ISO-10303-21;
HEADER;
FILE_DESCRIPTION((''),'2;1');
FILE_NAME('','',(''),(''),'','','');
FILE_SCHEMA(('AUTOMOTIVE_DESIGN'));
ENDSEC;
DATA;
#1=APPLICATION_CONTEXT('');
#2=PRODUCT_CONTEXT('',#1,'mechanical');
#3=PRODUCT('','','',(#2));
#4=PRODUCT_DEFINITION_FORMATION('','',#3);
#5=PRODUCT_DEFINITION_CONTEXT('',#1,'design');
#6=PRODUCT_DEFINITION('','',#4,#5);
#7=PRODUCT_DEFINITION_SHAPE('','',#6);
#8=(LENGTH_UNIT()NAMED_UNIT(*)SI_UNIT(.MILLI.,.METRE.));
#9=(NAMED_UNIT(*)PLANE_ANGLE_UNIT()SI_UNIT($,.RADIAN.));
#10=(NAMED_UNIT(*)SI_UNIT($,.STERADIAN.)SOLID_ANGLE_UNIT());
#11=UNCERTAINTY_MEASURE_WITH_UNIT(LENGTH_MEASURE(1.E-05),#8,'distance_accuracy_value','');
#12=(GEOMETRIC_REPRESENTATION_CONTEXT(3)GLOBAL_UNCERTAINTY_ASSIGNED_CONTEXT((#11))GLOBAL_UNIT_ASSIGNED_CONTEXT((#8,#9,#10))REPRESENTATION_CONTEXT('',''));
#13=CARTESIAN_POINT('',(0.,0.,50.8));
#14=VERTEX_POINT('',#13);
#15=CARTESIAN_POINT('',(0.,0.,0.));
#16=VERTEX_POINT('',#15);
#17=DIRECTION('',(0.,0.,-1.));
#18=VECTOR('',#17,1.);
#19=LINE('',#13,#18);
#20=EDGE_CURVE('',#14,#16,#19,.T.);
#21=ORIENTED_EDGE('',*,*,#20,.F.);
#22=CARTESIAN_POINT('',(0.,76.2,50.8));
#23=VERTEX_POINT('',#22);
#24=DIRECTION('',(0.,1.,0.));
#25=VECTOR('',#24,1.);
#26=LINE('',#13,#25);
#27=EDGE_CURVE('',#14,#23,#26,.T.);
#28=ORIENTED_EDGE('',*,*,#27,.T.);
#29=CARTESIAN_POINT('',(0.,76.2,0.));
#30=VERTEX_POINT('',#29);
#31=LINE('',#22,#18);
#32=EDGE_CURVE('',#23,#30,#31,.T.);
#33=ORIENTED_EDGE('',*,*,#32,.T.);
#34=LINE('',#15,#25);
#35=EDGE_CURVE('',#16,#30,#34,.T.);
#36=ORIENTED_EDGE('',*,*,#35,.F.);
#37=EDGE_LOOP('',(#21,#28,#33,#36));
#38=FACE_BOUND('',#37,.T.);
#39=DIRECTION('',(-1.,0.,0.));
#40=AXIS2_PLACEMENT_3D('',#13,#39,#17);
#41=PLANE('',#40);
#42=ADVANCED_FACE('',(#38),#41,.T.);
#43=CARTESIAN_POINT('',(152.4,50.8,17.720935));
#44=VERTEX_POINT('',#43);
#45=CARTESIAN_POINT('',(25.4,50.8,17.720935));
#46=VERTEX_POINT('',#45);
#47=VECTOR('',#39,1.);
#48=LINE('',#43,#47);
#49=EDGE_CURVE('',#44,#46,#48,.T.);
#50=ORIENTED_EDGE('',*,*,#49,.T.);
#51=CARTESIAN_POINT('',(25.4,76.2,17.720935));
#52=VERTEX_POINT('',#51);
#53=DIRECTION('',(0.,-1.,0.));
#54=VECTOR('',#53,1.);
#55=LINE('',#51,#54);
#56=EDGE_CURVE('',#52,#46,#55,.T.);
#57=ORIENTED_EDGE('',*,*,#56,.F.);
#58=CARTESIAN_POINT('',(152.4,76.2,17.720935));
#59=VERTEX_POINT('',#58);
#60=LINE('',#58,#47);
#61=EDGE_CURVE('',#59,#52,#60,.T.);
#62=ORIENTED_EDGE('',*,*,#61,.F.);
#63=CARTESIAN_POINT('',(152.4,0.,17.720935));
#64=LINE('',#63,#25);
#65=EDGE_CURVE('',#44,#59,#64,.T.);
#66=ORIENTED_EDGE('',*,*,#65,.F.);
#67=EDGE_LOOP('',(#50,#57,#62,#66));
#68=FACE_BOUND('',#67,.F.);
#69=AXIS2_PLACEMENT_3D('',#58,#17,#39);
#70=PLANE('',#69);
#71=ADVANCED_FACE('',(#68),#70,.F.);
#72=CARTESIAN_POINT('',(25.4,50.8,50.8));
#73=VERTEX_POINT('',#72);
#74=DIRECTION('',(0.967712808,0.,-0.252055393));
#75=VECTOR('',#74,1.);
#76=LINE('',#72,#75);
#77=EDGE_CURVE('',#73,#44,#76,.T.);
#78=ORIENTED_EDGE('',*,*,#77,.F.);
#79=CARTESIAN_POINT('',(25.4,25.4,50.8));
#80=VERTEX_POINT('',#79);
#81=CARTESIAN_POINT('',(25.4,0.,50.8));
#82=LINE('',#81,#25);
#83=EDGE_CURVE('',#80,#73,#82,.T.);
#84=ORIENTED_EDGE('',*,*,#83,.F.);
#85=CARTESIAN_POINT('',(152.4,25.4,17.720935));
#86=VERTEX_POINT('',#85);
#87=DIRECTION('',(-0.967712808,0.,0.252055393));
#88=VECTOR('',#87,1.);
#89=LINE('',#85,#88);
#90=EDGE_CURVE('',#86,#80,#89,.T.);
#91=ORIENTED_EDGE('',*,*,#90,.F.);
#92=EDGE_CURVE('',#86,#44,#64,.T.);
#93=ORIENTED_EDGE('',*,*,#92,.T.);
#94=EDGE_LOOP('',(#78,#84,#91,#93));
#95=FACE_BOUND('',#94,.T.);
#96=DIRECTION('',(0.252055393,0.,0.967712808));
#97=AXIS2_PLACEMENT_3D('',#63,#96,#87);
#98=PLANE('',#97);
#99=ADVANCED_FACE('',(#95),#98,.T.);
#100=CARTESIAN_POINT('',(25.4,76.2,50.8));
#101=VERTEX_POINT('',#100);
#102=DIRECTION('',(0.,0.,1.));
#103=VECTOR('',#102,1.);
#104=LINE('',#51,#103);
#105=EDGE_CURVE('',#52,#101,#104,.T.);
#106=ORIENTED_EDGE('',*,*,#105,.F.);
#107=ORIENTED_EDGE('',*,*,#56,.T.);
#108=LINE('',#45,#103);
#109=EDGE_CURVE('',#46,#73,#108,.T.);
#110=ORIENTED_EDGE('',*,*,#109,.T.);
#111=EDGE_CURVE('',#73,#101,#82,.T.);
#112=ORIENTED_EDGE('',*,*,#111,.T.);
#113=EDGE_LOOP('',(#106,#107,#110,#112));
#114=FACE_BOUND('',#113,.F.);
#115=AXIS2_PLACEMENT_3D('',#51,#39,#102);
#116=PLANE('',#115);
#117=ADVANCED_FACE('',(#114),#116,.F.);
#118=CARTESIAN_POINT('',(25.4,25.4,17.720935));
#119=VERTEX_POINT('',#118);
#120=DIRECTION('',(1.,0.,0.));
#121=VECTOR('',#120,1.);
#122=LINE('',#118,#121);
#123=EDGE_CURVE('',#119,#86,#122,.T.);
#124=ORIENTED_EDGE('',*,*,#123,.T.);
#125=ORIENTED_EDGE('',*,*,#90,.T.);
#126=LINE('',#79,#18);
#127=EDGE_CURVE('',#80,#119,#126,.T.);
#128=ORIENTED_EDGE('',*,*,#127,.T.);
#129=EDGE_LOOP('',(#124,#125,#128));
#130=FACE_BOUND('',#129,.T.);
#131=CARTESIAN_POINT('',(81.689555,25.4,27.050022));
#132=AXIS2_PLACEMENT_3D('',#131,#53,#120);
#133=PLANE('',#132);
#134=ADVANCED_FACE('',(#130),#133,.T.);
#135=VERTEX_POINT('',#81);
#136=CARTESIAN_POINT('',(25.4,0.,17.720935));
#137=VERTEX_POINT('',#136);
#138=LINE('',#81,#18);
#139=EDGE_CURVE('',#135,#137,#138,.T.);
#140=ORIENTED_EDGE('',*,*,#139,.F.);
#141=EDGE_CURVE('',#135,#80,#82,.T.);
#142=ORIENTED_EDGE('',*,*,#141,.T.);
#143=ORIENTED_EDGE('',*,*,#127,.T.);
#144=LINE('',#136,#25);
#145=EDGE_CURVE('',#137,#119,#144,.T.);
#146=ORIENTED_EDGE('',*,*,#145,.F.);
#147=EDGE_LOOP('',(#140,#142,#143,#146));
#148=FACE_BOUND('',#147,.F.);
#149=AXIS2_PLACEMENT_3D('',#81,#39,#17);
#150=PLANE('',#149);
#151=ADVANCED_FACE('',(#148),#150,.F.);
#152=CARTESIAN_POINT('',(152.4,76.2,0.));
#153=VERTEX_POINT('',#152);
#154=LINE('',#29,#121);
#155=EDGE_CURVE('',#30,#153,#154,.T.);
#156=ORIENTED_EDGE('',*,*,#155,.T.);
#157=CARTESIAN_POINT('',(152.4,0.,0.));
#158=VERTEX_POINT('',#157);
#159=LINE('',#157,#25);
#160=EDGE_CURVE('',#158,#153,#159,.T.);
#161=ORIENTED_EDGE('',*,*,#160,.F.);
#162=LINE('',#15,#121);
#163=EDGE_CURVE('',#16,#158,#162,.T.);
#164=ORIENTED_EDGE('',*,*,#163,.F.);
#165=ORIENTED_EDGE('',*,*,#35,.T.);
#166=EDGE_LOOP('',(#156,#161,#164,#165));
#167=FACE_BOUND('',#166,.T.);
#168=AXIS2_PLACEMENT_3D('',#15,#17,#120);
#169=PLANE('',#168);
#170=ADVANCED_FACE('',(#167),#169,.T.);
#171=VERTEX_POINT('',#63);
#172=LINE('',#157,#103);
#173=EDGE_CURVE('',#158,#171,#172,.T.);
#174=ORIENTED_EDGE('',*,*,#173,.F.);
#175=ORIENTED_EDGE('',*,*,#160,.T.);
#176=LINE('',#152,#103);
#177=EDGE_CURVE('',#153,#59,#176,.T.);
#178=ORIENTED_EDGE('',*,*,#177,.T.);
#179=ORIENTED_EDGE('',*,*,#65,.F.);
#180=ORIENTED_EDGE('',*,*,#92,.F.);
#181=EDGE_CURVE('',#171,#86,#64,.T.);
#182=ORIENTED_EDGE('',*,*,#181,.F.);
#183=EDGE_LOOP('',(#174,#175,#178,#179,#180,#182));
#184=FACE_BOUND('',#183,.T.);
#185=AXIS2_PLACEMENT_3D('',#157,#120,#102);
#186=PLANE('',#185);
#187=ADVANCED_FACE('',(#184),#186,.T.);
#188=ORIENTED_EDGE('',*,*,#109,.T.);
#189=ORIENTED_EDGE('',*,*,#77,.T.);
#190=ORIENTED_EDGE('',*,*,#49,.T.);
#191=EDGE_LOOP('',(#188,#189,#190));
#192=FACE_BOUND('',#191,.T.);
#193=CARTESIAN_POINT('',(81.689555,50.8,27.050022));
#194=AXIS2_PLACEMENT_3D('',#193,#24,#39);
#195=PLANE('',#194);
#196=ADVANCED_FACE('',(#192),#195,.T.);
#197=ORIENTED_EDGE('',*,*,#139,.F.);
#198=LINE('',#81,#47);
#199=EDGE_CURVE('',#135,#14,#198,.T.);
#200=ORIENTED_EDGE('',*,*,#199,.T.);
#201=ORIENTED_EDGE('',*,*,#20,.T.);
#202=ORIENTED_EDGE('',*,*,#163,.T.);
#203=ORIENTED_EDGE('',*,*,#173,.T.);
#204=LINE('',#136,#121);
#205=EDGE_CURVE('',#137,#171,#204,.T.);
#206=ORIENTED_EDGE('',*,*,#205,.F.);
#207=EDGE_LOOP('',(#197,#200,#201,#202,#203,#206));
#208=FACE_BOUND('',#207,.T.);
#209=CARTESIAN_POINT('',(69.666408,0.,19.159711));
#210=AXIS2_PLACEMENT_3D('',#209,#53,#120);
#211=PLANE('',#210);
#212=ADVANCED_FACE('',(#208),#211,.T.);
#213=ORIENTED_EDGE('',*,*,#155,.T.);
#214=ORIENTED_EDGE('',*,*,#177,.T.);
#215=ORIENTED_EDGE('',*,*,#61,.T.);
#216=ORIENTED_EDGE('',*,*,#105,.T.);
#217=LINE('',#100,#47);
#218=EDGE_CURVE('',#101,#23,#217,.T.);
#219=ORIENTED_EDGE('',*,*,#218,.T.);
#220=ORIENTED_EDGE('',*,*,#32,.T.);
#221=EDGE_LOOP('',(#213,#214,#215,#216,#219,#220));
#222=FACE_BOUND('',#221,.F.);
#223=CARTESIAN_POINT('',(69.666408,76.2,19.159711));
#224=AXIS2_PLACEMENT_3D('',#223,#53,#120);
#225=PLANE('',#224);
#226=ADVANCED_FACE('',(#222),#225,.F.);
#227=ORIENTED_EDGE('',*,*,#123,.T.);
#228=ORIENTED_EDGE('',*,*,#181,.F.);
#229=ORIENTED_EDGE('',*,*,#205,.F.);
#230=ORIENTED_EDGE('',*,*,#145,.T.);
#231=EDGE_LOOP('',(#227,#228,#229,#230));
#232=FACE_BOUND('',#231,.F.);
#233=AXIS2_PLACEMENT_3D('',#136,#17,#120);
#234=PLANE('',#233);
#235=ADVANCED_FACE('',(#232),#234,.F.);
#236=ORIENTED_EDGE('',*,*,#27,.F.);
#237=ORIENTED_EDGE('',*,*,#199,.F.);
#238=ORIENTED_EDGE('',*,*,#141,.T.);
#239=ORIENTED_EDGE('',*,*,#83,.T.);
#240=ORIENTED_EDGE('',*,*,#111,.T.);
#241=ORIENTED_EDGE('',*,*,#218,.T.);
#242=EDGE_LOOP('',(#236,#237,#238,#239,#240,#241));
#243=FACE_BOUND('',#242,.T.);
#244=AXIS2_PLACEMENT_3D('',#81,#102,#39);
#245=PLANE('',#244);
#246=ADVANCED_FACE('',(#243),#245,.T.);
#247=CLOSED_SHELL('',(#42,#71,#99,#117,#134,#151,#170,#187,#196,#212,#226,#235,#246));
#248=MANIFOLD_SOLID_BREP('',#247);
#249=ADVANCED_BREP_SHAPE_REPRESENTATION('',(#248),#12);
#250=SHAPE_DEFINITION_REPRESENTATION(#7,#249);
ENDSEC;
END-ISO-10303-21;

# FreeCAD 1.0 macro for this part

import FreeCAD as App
import Part
import Sketcher

V = App.Vector
Q = App.Units.Quantity

doc = App.newDocument("Part")
body = doc.addObject("PartDesign::Body", "Body")

# Sketch on XZ plane
sketch1 = doc.addObject("Sketcher::SketchObject", "Sketch")
body.addObject(sketch1)
sketch1.AttachmentSupport = (doc.XZ_Plane, [""])
sketch1.MapMode = "FlatFace"
sketch1.addGeometry(Part.LineSegment(V(0, 51, 0), V(0, 0, 0)), False)
sketch1.addGeometry(Part.LineSegment(V(0, 0, 0), V(152, 0, 0)), False)
sketch1.addGeometry(Part.LineSegment(V(152, 0, 0), V(152, 18, 0)), False)
sketch1.addGeometry(Part.LineSegment(V(152, 18, 0), V(25, 51, 0)), False)
sketch1.addGeometry(Part.LineSegment(V(25, 51, 0), V(0, 51, 0)), False)
sketch1.addConstraint(Sketcher.Constraint("Coincident", 0, 2, 1, 1))
sketch1.addConstraint(Sketcher.Constraint("Coincident", 1, 2, 2, 1))
sketch1.addConstraint(Sketcher.Constraint("Coincident", 2, 2, 3, 1))
sketch1.addConstraint(Sketcher.Constraint("Coincident", 3, 2, 4, 1))
sketch1.addConstraint(Sketcher.Constraint("Coincident", 4, 2, 0, 1))
sketch1.addConstraint(Sketcher.Constraint("Vertical", 0))
sketch1.addConstraint(Sketcher.Constraint("Horizontal", 1))
sketch1.addConstraint(Sketcher.Constraint("Vertical", 2))
sketch1.addConstraint(Sketcher.Constraint("Horizontal", 4))
sketch1.addConstraint(Sketcher.Constraint("Coincident", 0, 2, -1, 1))
sketch1.addConstraint(Sketcher.Constraint("DistanceX", 1, 1, 1, 2, Q("6 in")))
sketch1.addConstraint(Sketcher.Constraint("DistanceX", 4, 2, 4, 1, Q("1 in")))
sketch1.addConstraint(Sketcher.Constraint("DistanceY", 0, 2, 0, 1, Q("2 in")))
sketch1.addConstraint(Sketcher.Constraint("DistanceY", 2, 1, 2, 2, Q("17.720935 mm")))
pad1 = doc.addObject("PartDesign::Pad", "Pad")
body.addObject(pad1)
pad1.Profile = sketch1
pad1.Length = Q("3 in")
pad1.Reversed = True

# Sketch on XZ plane
sketch2 = doc.addObject("Sketcher::SketchObject", "Sketch001")
body.addObject(sketch2)
sketch2.AttachmentSupport = (doc.XZ_Plane, [""])
sketch2.MapMode = "FlatFace"
sketch2.addGeometry(Part.LineSegment(V(25, 18, 0), V(152, 18, 0)), False)
sketch2.addGeometry(Part.LineSegment(V(152, 18, 0), V(25, 51, 0)), False)
sketch2.addGeometry(Part.LineSegment(V(25, 51, 0), V(25, 18, 0)), False)
sketch2.addConstraint(Sketcher.Constraint("Coincident", 0, 2, 1, 1))
sketch2.addConstraint(Sketcher.Constraint("Coincident", 1, 2, 2, 1))
sketch2.addConstraint(Sketcher.Constraint("Coincident", 2, 2, 0, 1))
sketch2.addConstraint(Sketcher.Constraint("Horizontal", 0))
sketch2.addConstraint(Sketcher.Constraint("Vertical", 2))
sketch2.addConstraint(Sketcher.Constraint("DistanceX", 0, 1, 0, 2, Q("5 in")))
sketch2.addConstraint(Sketcher.Constraint("DistanceX", -1, 1, 0, 2, Q("6 in")))
sketch2.addConstraint(Sketcher.Constraint("DistanceY", -1, 1, 1, 2, Q("2 in")))
sketch2.addConstraint(Sketcher.Constraint("DistanceY", 2, 2, 2, 1, Q("33.079065 mm")))
pocket1 = doc.addObject("PartDesign::Pocket", "Pocket")
body.addObject(pocket1)
pocket1.Profile = sketch2
pocket1.Length = Q("1 in")

# Sketch on XZ plane
sketch3 = doc.addObject("Sketcher::SketchObject", "Sketch002")
body.addObject(sketch3)
sketch3.AttachmentSupport = (doc.XZ_Plane, [""])
sketch3.MapMode = "FlatFace"
sketch3.AttachmentOffset = App.Placement(V(0, 0, -3 * 25.4), App.Rotation())
sketch3.addGeometry(Part.LineSegment(V(25, 51, 0), V(152, 18, 0)), False)
sketch3.addGeometry(Part.LineSegment(V(152, 18, 0), V(25, 18, 0)), False)
sketch3.addGeometry(Part.LineSegment(V(25, 18, 0), V(25, 51, 0)), False)
sketch3.addConstraint(Sketcher.Constraint("Coincident", 0, 2, 1, 1))
sketch3.addConstraint(Sketcher.Constraint("Coincident", 1, 2, 2, 1))
sketch3.addConstraint(Sketcher.Constraint("Coincident", 2, 2, 0, 1))
sketch3.addConstraint(Sketcher.Constraint("Horizontal", 1))
sketch3.addConstraint(Sketcher.Constraint("Vertical", 2))
sketch3.addConstraint(Sketcher.Constraint("DistanceX", 1, 2, 1, 1, Q("5 in")))
sketch3.addConstraint(Sketcher.Constraint("DistanceX", -1, 1, 0, 2, Q("6 in")))
sketch3.addConstraint(Sketcher.Constraint("DistanceY", -1, 1, 2, 2, Q("2 in")))
sketch3.addConstraint(Sketcher.Constraint("DistanceY", 2, 1, 2, 2, Q("33.079065 mm")))
pocket2 = doc.addObject("PartDesign::Pocket", "Pocket001")
body.addObject(pocket2)
pocket2.Profile = sketch3
pocket2.Length = Q("1 in")
pocket2.Reversed = True

doc.recompute()
